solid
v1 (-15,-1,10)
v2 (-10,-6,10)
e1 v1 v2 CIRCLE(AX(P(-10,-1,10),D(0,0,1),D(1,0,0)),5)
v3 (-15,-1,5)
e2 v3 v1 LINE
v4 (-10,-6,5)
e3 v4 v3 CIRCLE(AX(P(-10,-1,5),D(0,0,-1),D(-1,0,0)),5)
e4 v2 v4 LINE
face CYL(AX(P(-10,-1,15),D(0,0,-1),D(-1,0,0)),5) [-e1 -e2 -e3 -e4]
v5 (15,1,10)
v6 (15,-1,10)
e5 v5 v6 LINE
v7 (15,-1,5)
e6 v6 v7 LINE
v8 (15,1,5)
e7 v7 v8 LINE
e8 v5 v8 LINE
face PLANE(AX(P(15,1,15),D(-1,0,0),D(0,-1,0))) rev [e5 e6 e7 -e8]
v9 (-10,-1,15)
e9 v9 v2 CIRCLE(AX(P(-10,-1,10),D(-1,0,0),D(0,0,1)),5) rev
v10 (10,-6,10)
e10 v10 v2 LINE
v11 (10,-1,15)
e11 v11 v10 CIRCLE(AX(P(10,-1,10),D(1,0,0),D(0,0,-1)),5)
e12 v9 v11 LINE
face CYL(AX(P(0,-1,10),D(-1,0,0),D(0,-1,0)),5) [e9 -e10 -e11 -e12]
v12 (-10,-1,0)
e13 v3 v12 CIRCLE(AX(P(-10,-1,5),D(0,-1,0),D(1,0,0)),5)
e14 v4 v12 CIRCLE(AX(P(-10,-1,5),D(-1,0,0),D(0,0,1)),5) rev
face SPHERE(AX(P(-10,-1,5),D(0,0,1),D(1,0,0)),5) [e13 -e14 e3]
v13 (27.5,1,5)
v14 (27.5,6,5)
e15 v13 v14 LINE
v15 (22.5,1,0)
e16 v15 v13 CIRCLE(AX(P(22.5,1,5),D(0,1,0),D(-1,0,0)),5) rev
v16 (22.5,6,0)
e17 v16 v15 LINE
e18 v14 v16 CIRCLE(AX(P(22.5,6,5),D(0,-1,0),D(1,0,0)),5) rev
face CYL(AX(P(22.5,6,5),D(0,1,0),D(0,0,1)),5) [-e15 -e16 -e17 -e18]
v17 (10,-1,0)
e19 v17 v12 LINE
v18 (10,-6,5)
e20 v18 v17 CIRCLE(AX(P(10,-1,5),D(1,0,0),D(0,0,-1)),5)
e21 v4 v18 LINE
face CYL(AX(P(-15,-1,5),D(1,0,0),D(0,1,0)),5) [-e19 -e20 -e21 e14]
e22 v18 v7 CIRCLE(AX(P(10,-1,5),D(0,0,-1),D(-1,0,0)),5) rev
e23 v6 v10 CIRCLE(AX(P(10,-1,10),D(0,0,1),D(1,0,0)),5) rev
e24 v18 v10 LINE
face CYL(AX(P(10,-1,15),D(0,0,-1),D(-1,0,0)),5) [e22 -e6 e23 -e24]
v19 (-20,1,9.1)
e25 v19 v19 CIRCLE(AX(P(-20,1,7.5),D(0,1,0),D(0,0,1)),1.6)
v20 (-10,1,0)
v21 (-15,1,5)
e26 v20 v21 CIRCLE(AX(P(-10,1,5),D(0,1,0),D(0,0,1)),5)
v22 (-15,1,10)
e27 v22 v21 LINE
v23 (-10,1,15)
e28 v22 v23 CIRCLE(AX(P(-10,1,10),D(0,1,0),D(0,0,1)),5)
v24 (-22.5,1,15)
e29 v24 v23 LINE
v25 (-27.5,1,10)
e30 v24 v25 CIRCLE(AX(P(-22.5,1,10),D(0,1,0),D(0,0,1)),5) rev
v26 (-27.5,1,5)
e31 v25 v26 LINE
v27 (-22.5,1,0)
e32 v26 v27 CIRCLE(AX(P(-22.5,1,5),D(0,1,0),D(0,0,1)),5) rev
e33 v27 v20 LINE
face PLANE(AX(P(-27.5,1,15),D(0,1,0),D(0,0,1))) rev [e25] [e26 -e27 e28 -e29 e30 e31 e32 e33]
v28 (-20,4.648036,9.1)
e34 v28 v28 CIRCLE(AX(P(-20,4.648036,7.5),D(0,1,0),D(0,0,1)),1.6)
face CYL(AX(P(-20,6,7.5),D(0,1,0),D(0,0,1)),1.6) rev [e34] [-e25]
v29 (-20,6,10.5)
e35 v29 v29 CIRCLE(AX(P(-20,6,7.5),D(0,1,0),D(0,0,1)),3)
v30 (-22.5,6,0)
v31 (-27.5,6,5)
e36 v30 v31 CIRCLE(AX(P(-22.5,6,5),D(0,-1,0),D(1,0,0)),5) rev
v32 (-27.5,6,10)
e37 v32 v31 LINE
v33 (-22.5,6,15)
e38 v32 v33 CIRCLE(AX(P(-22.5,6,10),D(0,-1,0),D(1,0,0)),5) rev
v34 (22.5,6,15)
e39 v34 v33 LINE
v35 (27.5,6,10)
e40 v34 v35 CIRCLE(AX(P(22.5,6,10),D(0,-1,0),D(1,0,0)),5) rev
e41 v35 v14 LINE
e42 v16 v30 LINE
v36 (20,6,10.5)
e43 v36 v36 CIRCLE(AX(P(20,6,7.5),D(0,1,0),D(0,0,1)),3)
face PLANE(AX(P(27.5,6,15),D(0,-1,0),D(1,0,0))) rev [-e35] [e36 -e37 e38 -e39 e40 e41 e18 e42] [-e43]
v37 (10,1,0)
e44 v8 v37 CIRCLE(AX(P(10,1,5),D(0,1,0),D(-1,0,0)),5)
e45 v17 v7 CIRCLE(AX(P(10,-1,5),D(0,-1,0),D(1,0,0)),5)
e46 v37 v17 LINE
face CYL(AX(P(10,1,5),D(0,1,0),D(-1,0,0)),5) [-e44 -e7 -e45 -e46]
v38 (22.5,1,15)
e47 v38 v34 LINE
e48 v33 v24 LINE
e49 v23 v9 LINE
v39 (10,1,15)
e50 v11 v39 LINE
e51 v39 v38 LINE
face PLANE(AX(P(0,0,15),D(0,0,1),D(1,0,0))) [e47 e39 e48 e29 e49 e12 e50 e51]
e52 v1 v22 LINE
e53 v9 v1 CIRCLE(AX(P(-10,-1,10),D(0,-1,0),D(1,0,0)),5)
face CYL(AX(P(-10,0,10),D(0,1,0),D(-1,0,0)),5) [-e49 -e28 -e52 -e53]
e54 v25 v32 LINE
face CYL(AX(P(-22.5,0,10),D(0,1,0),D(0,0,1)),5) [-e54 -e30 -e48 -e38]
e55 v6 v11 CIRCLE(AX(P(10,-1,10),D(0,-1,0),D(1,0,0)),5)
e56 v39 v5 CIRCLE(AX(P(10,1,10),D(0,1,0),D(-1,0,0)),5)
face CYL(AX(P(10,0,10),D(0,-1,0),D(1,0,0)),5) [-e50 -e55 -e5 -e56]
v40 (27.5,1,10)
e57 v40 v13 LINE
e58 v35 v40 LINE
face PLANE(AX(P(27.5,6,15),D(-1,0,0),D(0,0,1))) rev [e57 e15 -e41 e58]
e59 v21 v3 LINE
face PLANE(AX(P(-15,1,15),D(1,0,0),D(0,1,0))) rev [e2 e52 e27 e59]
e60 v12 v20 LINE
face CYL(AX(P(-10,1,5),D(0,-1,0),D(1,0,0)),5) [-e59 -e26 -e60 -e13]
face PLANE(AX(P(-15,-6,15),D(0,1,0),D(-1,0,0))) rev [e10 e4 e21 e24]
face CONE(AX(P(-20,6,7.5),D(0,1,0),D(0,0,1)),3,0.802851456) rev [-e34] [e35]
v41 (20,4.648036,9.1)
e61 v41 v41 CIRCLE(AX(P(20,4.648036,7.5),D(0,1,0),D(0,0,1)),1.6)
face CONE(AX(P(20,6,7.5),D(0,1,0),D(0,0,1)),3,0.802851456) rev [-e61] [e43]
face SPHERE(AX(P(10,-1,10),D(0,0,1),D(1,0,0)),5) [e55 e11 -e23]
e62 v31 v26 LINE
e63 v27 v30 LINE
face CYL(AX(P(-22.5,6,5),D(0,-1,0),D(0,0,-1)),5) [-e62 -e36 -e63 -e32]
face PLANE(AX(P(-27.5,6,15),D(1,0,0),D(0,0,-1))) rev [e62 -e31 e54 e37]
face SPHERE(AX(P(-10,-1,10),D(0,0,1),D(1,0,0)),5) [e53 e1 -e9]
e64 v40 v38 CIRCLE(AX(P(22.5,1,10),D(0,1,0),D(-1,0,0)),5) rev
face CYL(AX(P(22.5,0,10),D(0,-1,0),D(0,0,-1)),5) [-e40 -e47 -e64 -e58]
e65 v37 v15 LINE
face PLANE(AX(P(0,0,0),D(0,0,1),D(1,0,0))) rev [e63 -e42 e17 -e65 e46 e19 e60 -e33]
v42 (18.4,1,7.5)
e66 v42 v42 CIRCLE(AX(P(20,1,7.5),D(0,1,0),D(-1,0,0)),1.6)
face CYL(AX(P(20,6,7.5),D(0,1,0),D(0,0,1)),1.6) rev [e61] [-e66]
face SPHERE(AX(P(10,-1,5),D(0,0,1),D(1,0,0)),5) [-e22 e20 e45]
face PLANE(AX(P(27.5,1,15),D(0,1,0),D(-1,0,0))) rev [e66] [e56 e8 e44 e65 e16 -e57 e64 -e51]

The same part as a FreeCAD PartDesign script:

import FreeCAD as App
import Part
import Sketcher
Q = App.Units.Quantity


def edges_at(feature, points):
    """Names of the edges that pass closest to the given points."""
    edges = feature.Shape.Edges
    near = lambda p: min(range(len(edges)), key=lambda i: edges[i].distToShape(Part.Vertex(*p))[0])
    return sorted({f"Edge{near(p) + 1}" for p in points})


def add_polygon(sketch, points):
    """Adds a closed chain of lines whose ends are joined by coincident constraints."""
    first, n = sketch.GeometryCount, len(points)
    for a, b in zip(points, points[1:] + points[:1]):
        sketch.addGeometry(Part.LineSegment(App.Vector(*a, 0), App.Vector(*b, 0)), False)
    for i in range(n):
        sketch.addConstraint(Sketcher.Constraint("Coincident", first + i, 2, first + (i + 1) % n, 1))

doc = App.newDocument("Part")
body = doc.addObject("PartDesign::Body", "Body")

# Sketch on XY plane
sketch1 = doc.addObject("Sketcher::SketchObject", "Sketch")
body.addObject(sketch1)
sketch1.AttachmentSupport = (doc.XY_Plane, [""])
sketch1.MapMode = "FlatFace"
add_polygon(sketch1, [(28, 6), (-28, 6), (-28, 1), (-15, 1), (-15, -6), (15, -6), (15, 1), (28, 1)])  # lines 0-7
sketch1.addConstraint([
    Sketcher.Constraint("Horizontal", 0),
    Sketcher.Constraint("Vertical", 1),
    Sketcher.Constraint("Horizontal", 2),
    Sketcher.Constraint("Vertical", 3),
    Sketcher.Constraint("Horizontal", 4),
    Sketcher.Constraint("Vertical", 5),
    Sketcher.Constraint("Horizontal", 6),
    Sketcher.Constraint("Vertical", 7),
    Sketcher.Constraint("Symmetric", 2, 2, 5, 2, -2),
    Sketcher.Constraint("Equal", 2, 6),
    Sketcher.Constraint("DistanceX", 0, 2, 0, 1, Q("55 mm")),
    Sketcher.Constraint("DistanceX", 4, 1, 4, 2, Q("30 mm")),
    Sketcher.Constraint("DistanceY", 1, 2, 1, 1, Q("5 mm")),
    Sketcher.Constraint("DistanceY", 3, 2, 3, 1, Q("7 mm")),
    Sketcher.Constraint("DistanceY", -1, 1, 0, 2, Q("6 mm")),
])
pad1 = doc.addObject("PartDesign::Pad", "Pad")
body.addObject(pad1)
pad1.Profile = sketch1
pad1.Length = 15

# Sketch on XZ plane
sketch2 = doc.addObject("Sketcher::SketchObject", "Sketch001")
body.addObject(sketch2)
sketch2.AttachmentSupport = (doc.XZ_Plane, [""])
sketch2.MapMode = "FlatFace"
sketch2.AttachmentOffset = App.Placement(App.Vector(0, 0, -6), App.Rotation())
sketch2.addGeometry([
    Part.Circle(App.Vector(-20, 7.5, 0), App.Vector(0, 0, 1), 1.6),
    Part.Circle(App.Vector(20, 7.5, 0), App.Vector(0, 0, 1), 1.6),
], False)
sketch2.addConstraint([
    Sketcher.Constraint("Equal", 0, 1),
    Sketcher.Constraint("Symmetric", 0, 3, 1, 3, -2),
    Sketcher.Constraint("Diameter", 0, Q("3.2 mm")),
    Sketcher.Constraint("DistanceX", 0, 3, -1, 1, Q("20 mm")),
    Sketcher.Constraint("DistanceY", -1, 1, 0, 3, Q("7.5 mm")),
])
doc.recompute()
hole = doc.addObject("PartDesign::Hole", "Hole")
body.addObject(hole)
hole.Profile = sketch2
hole.ThreadType = "None"
hole.Diameter = 3.2
hole.DepthType = "ThroughAll"
hole.HoleCutType = "Countersink"
hole.HoleCutDiameter = 6
hole.HoleCutCountersinkAngle = 92
hole.Reversed = True
doc.recompute()

fillet = doc.addObject("PartDesign::Fillet", "Fillet")
body.addObject(fillet)
fillet.Base = (hole, edges_at(hole, [
    (-15, -2.5, 15),
    (-27.5, 3.5, 0),
    (0, -6, 15),
    (15, -6, 7.5),
    (-15, -6, 7.5),
    (15, -2.5, 15),
    (27.5, 3.5, 15),
    (-27.5, 3.5, 15),
    (27.5, 3.5, 0),
    (15, -2.5, 0),
    (0, -6, 0),
    (-15, -2.5, 0),
]))
fillet.Radius = 5

doc.recompute()
